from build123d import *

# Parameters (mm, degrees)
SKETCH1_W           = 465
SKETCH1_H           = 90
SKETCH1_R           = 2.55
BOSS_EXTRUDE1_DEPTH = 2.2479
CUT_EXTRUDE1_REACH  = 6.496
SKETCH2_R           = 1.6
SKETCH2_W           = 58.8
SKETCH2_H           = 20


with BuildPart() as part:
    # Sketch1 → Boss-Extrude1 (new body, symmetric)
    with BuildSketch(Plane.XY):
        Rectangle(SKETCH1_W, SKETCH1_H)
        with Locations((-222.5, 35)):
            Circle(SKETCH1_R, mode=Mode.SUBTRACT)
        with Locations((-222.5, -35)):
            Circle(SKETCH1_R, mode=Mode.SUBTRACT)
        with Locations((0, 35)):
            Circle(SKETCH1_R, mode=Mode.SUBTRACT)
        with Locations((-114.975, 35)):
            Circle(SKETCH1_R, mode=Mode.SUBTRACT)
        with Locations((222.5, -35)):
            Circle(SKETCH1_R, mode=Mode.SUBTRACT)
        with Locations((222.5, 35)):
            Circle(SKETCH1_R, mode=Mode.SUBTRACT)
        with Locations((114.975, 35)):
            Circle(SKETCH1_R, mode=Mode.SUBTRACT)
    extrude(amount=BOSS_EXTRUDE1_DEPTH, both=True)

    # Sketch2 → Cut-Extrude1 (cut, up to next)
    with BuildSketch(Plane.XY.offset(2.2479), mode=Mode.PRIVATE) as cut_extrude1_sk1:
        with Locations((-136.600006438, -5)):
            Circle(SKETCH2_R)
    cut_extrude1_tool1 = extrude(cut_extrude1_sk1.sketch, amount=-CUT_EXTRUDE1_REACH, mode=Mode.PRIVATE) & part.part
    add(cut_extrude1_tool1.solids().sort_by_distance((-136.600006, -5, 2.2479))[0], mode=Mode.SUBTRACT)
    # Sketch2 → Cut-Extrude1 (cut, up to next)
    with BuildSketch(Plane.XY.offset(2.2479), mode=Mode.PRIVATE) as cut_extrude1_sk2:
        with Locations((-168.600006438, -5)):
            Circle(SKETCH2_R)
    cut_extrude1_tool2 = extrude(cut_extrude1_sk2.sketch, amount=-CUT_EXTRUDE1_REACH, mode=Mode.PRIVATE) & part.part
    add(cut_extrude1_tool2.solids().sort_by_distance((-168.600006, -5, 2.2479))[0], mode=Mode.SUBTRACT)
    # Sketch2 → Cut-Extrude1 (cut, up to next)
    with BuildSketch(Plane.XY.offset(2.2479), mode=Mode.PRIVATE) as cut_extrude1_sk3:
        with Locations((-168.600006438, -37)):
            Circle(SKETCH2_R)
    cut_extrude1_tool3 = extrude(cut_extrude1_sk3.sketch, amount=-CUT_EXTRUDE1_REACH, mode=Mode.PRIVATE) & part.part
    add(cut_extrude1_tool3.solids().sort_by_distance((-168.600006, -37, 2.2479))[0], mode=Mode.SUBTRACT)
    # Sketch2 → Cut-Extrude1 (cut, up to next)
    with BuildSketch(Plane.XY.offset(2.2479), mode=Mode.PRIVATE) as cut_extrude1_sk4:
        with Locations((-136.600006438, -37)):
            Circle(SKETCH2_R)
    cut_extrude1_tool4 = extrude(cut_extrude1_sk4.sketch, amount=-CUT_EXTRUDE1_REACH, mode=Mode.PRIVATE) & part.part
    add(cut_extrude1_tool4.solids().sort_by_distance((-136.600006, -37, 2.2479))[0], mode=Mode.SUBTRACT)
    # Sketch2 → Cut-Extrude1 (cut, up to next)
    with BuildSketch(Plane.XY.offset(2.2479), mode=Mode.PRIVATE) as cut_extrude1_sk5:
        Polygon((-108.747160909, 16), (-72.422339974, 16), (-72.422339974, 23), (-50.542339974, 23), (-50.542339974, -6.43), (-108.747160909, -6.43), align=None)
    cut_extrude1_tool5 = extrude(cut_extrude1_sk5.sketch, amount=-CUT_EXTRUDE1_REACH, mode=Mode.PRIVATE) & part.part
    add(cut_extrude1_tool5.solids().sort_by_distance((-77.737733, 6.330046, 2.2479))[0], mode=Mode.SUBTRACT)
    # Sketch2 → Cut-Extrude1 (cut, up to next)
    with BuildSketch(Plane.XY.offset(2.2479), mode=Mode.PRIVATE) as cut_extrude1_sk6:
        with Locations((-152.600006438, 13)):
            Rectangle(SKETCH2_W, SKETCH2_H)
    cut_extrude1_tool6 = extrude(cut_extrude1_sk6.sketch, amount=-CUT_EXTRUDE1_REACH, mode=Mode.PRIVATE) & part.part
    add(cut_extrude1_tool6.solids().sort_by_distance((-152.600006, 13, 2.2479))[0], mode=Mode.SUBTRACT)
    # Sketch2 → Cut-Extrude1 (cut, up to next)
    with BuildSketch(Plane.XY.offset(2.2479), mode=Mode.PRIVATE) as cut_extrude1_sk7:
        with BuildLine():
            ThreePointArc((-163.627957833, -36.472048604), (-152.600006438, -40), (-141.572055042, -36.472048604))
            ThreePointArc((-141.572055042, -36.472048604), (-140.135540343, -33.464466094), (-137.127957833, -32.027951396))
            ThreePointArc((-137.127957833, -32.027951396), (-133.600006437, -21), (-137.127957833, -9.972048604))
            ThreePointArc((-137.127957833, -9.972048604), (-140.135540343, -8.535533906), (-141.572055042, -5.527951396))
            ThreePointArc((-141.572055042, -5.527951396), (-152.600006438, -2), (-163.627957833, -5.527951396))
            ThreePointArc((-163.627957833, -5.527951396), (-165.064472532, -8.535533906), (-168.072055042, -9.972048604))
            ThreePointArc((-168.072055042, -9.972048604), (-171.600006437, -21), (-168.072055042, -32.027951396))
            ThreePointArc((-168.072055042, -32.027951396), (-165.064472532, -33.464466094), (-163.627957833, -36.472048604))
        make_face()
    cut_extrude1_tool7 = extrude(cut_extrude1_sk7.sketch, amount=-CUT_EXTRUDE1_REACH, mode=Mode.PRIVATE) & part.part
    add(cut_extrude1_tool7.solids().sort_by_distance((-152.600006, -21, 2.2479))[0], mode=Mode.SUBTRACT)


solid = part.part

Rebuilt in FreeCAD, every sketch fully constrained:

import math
import FreeCAD as App
import Part
import Sketcher

V = App.Vector
Q = App.Units.Quantity

doc = App.newDocument("Part")
params = doc.addObject("Spreadsheet::Sheet", "Params")
for row, (alias, value) in enumerate([
    ("sketch1_diameter", "5.1 mm"),
    ("sketch1_width", "465 mm"),
    ("sketch1_height", "90 mm"),
    ("pad1_length", "4.4958 mm"),
    ("sketch2_diameter", "3.2 mm"),
    ("sketch3_diameter", "3.2 mm"),
    ("sketch4_diameter", "3.2 mm"),
    ("sketch5_diameter", "3.2 mm"),
    ("sketch6_height", "7 mm"),
    ("sketch6_width", "21.88 mm"),
    ("sketch6_height2", "22.43 mm"),
    ("sketch7_height", "20 mm"),
    ("sketch7_width", "58.8 mm"),
    ("sketch8_radius", "19 mm"),
    ("sketch8_radius2", "5 mm"),
], start=1):
    params.set(f"A{row}", alias)
    params.set(f"B{row}", "=" + value)
    params.setAlias(f"B{row}", alias)

body = doc.addObject("PartDesign::Body", "Body")

sketch1 = doc.addObject("Sketcher::SketchObject", "Sketch")
body.addObject(sketch1)
sketch1.AttachmentSupport = (doc.XY_Plane, [""])
sketch1.MapMode = "FlatFace"
sketch1.addGeometry(Part.LineSegment(V(-232.5, 45, 0), V(-232.5, -45, 0)), False)
sketch1.addGeometry(Part.LineSegment(V(-232.5, -45, 0), V(232.5, -45, 0)), False)
sketch1.addGeometry(Part.LineSegment(V(232.5, -45, 0), V(232.5, 45, 0)), False)
sketch1.addGeometry(Part.LineSegment(V(232.5, 45, 0), V(-232.5, 45, 0)), False)
sketch1.addGeometry(Part.Circle(V(-222.5, -35, 0), V(0, 0, 1), 2.5), False)
sketch1.addGeometry(Part.Circle(V(222.5, -35, 0), V(0, 0, 1), 2.5), False)
sketch1.addGeometry(Part.Circle(V(-222.5, 35, 0), V(0, 0, 1), 2.5), False)
sketch1.addGeometry(Part.Circle(V(-115, 35, 0), V(0, 0, 1), 2.5), False)
sketch1.addGeometry(Part.Circle(V(0, 35, 0), V(0, 0, 1), 2.5), False)
sketch1.addGeometry(Part.Circle(V(115, 35, 0), V(0, 0, 1), 2.5), False)
sketch1.addGeometry(Part.Circle(V(222.5, 35, 0), V(0, 0, 1), 2.5), False)
sketch1.addConstraint(Sketcher.Constraint("Coincident", 0, 2, 1, 1))
sketch1.addConstraint(Sketcher.Constraint("Coincident", 1, 2, 2, 1))
sketch1.addConstraint(Sketcher.Constraint("Coincident", 2, 2, 3, 1))
sketch1.addConstraint(Sketcher.Constraint("Coincident", 3, 2, 0, 1))
sketch1.addConstraint(Sketcher.Constraint("Vertical", 0))
sketch1.addConstraint(Sketcher.Constraint("Horizontal", 1))
sketch1.addConstraint(Sketcher.Constraint("Vertical", 2))
sketch1.addConstraint(Sketcher.Constraint("Horizontal", 3))
sketch1.addConstraint(Sketcher.Constraint("Equal", 4, 5))
sketch1.addConstraint(Sketcher.Constraint("Equal", 5, 6))
sketch1.addConstraint(Sketcher.Constraint("Equal", 6, 7))
sketch1.addConstraint(Sketcher.Constraint("Equal", 7, 8))
sketch1.addConstraint(Sketcher.Constraint("Equal", 8, 9))
sketch1.addConstraint(Sketcher.Constraint("Equal", 9, 10))
sketch1.addConstraint(Sketcher.Constraint("Symmetric", 5, 3, 6, 3, -1, 1))
sketch1.addConstraint(Sketcher.Constraint("Symmetric", 4, 3, 10, 3, -1, 1))
sketch1.addConstraint(Sketcher.Constraint("Symmetric", 0, 2, 2, 2, -1, 1))
sketch1.addConstraint(Sketcher.Constraint("Symmetric", 4, 3, 5, 3, -2))
sketch1.addConstraint(Sketcher.Constraint("Symmetric", 7, 3, 9, 3, -2))
sketch1.addConstraint(Sketcher.Constraint("PointOnObject", 8, 3, -2))
sketch1.addConstraint(Sketcher.Constraint("Horizontal", 6, 3, 7, 3))
sketch1.addConstraint(Sketcher.Constraint("Horizontal", 7, 3, 8, 3))
sketch1.addConstraint(Sketcher.Constraint("Diameter", 4, Q("5.1 mm")))
sketch1.addConstraint(Sketcher.Constraint("DistanceX", 1, 1, 1, 2, Q("465 mm")))
sketch1.addConstraint(Sketcher.Constraint("DistanceY", 0, 2, 0, 1, Q("90 mm")))
sketch1.addConstraint(Sketcher.Constraint("DistanceY", 4, 3, -1, 1, Q("35 mm")))
sketch1.addConstraint(Sketcher.Constraint("DistanceX", 4, 3, 5, 3, Q("445 mm")))
sketch1.addConstraint(Sketcher.Constraint("DistanceX", 7, 3, 9, 3, Q("229.95 mm")))
sketch1.setExpression("Constraints[22]", "Params.sketch1_diameter")
sketch1.setExpression("Constraints[23]", "Params.sketch1_width")
sketch1.setExpression("Constraints[24]", "Params.sketch1_height")
pad1 = doc.addObject("PartDesign::Pad", "Pad")
body.addObject(pad1)
pad1.Profile = sketch1
pad1.setExpression("Length", "Params.pad1_length")
pad1.Midplane = True

sketch2 = doc.addObject("Sketcher::SketchObject", "Sketch001")
body.addObject(sketch2)
sketch2.AttachmentSupport = (doc.XY_Plane, [""])
sketch2.MapMode = "FlatFace"
sketch2.AttachmentOffset = App.Placement(V(0, 0, 2.2479), App.Rotation())
sketch2.addGeometry(Part.Circle(V(-136.6, -5, 0), V(0, 0, 1), 1.6), False)
sketch2.addConstraint(Sketcher.Constraint("Diameter", 0, Q("3.2 mm")))
sketch2.addConstraint(Sketcher.Constraint("DistanceY", 0, 3, -1, 1, Q("5 mm")))
sketch2.addConstraint(Sketcher.Constraint("DistanceX", 0, 3, -1, 1, Q("136.600006 mm")))
sketch2.setExpression("Constraints[0]", "Params.sketch2_diameter")
pocket1 = doc.addObject("PartDesign::Pocket", "Pocket")
body.addObject(pocket1)
pocket1.Profile = sketch2
pocket1.Type = "UpToFirst"

sketch3 = doc.addObject("Sketcher::SketchObject", "Sketch002")
body.addObject(sketch3)
sketch3.AttachmentSupport = (doc.XY_Plane, [""])
sketch3.MapMode = "FlatFace"
sketch3.AttachmentOffset = App.Placement(V(0, 0, 2.2479), App.Rotation())
sketch3.addGeometry(Part.Circle(V(-168.6, -5, 0), V(0, 0, 1), 1.6), False)
sketch3.addConstraint(Sketcher.Constraint("Diameter", 0, Q("3.2 mm")))
sketch3.addConstraint(Sketcher.Constraint("DistanceY", 0, 3, -1, 1, Q("5 mm")))
sketch3.addConstraint(Sketcher.Constraint("DistanceX", 0, 3, -1, 1, Q("168.600006 mm")))
sketch3.setExpression("Constraints[0]", "Params.sketch3_diameter")
pocket2 = doc.addObject("PartDesign::Pocket", "Pocket001")
body.addObject(pocket2)
pocket2.Profile = sketch3
pocket2.Type = "UpToFirst"

sketch4 = doc.addObject("Sketcher::SketchObject", "Sketch003")
body.addObject(sketch4)
sketch4.AttachmentSupport = (doc.XY_Plane, [""])
sketch4.MapMode = "FlatFace"
sketch4.AttachmentOffset = App.Placement(V(0, 0, 2.2479), App.Rotation())
sketch4.addGeometry(Part.Circle(V(-168.6, -37, 0), V(0, 0, 1), 1.6), False)
sketch4.addConstraint(Sketcher.Constraint("Diameter", 0, Q("3.2 mm")))
sketch4.addConstraint(Sketcher.Constraint("DistanceY", 0, 3, -1, 1, Q("37 mm")))
sketch4.addConstraint(Sketcher.Constraint("DistanceX", 0, 3, -1, 1, Q("168.600006 mm")))
sketch4.setExpression("Constraints[0]", "Params.sketch4_diameter")
pocket3 = doc.addObject("PartDesign::Pocket", "Pocket002")
body.addObject(pocket3)
pocket3.Profile = sketch4
pocket3.Type = "UpToFirst"

sketch5 = doc.addObject("Sketcher::SketchObject", "Sketch004")
body.addObject(sketch5)
sketch5.AttachmentSupport = (doc.XY_Plane, [""])
sketch5.MapMode = "FlatFace"
sketch5.AttachmentOffset = App.Placement(V(0, 0, 2.2479), App.Rotation())
sketch5.addGeometry(Part.Circle(V(-136.6, -37, 0), V(0, 0, 1), 1.6), False)
sketch5.addConstraint(Sketcher.Constraint("Diameter", 0, Q("3.2 mm")))
sketch5.addConstraint(Sketcher.Constraint("DistanceY", 0, 3, -1, 1, Q("37 mm")))
sketch5.addConstraint(Sketcher.Constraint("DistanceX", 0, 3, -1, 1, Q("136.600006 mm")))
sketch5.setExpression("Constraints[0]", "Params.sketch5_diameter")
pocket4 = doc.addObject("PartDesign::Pocket", "Pocket003")
body.addObject(pocket4)
pocket4.Profile = sketch5
pocket4.Type = "UpToFirst"

sketch6 = doc.addObject("Sketcher::SketchObject", "Sketch005")
body.addObject(sketch6)
sketch6.AttachmentSupport = (doc.XY_Plane, [""])
sketch6.MapMode = "FlatFace"
sketch6.AttachmentOffset = App.Placement(V(0, 0, 2.2479), App.Rotation())
sketch6.addGeometry(Part.LineSegment(V(-72, 16, 0), V(-109, 16, 0)), False)
sketch6.addGeometry(Part.LineSegment(V(-109, 16, 0), V(-109, -6, 0)), False)
sketch6.addGeometry(Part.LineSegment(V(-109, -6, 0), V(-51, -6, 0)), False)
sketch6.addGeometry(Part.LineSegment(V(-51, -6, 0), V(-51, 23, 0)), False)
sketch6.addGeometry(Part.LineSegment(V(-51, 23, 0), V(-72, 23, 0)), False)
sketch6.addGeometry(Part.LineSegment(V(-72, 23, 0), V(-72, 16, 0)), False)
sketch6.addConstraint(Sketcher.Constraint("Coincident", 0, 2, 1, 1))
sketch6.addConstraint(Sketcher.Constraint("Coincident", 1, 2, 2, 1))
sketch6.addConstraint(Sketcher.Constraint("Coincident", 2, 2, 3, 1))
sketch6.addConstraint(Sketcher.Constraint("Coincident", 3, 2, 4, 1))
sketch6.addConstraint(Sketcher.Constraint("Coincident", 4, 2, 5, 1))
sketch6.addConstraint(Sketcher.Constraint("Coincident", 5, 2, 0, 1))
sketch6.addConstraint(Sketcher.Constraint("Horizontal", 0))
sketch6.addConstraint(Sketcher.Constraint("Vertical", 1))
sketch6.addConstraint(Sketcher.Constraint("Horizontal", 2))
sketch6.addConstraint(Sketcher.Constraint("Vertical", 3))
sketch6.addConstraint(Sketcher.Constraint("Horizontal", 4))
sketch6.addConstraint(Sketcher.Constraint("Vertical", 5))
sketch6.addConstraint(Sketcher.Constraint("DistanceY", 5, 2, 5, 1, Q("7 mm")))
sketch6.addConstraint(Sketcher.Constraint("DistanceY", -1, 1, 0, 2, Q("16 mm")))
sketch6.addConstraint(Sketcher.Constraint("DistanceX", 4, 2, 4, 1, Q("21.88 mm")))
sketch6.addConstraint(Sketcher.Constraint("DistanceY", 1, 2, 1, 1, Q("22.43 mm")))
sketch6.addConstraint(Sketcher.Constraint("DistanceX", 0, 2, 0, 1, Q("36.324821 mm")))
sketch6.addConstraint(Sketcher.Constraint("DistanceX", 0, 2, -1, 1, Q("108.747161 mm")))
sketch6.setExpression("Constraints[12]", "Params.sketch6_height")
sketch6.setExpression("Constraints[14]", "Params.sketch6_width")
sketch6.setExpression("Constraints[15]", "Params.sketch6_height2")
pocket5 = doc.addObject("PartDesign::Pocket", "Pocket004")
body.addObject(pocket5)
pocket5.Profile = sketch6
pocket5.Type = "UpToFirst"

sketch7 = doc.addObject("Sketcher::SketchObject", "Sketch006")
body.addObject(sketch7)
sketch7.AttachmentSupport = (doc.XY_Plane, [""])
sketch7.MapMode = "FlatFace"
sketch7.AttachmentOffset = App.Placement(V(0, 0, 2.2479), App.Rotation())
sketch7.addGeometry(Part.LineSegment(V(-182, 23, 0), V(-182, 3, 0)), False)
sketch7.addGeometry(Part.LineSegment(V(-182, 3, 0), V(-123, 3, 0)), False)
sketch7.addGeometry(Part.LineSegment(V(-123, 3, 0), V(-123, 23, 0)), False)
sketch7.addGeometry(Part.LineSegment(V(-123, 23, 0), V(-182, 23, 0)), False)
sketch7.addConstraint(Sketcher.Constraint("Coincident", 0, 2, 1, 1))
sketch7.addConstraint(Sketcher.Constraint("Coincident", 1, 2, 2, 1))
sketch7.addConstraint(Sketcher.Constraint("Coincident", 2, 2, 3, 1))
sketch7.addConstraint(Sketcher.Constraint("Coincident", 3, 2, 0, 1))
sketch7.addConstraint(Sketcher.Constraint("Vertical", 0))
sketch7.addConstraint(Sketcher.Constraint("Horizontal", 1))
sketch7.addConstraint(Sketcher.Constraint("Vertical", 2))
sketch7.addConstraint(Sketcher.Constraint("Horizontal", 3))
sketch7.addConstraint(Sketcher.Constraint("DistanceY", 0, 2, 0, 1, Q("20 mm")))
sketch7.addConstraint(Sketcher.Constraint("DistanceX", 1, 1, 1, 2, Q("58.8 mm")))
sketch7.addConstraint(Sketcher.Constraint("DistanceY", -1, 1, 0, 2, Q("3 mm")))
sketch7.addConstraint(Sketcher.Constraint("DistanceX", 0, 2, -1, 1, Q("182.000006 mm")))
sketch7.setExpression("Constraints[8]", "Params.sketch7_height")
sketch7.setExpression("Constraints[9]", "Params.sketch7_width")
pocket6 = doc.addObject("PartDesign::Pocket", "Pocket005")
body.addObject(pocket6)
pocket6.Profile = sketch7
pocket6.Type = "UpToFirst"

sketch8 = doc.addObject("Sketcher::SketchObject", "Sketch007")
body.addObject(sketch8)
sketch8.AttachmentSupport = (doc.XY_Plane, [""])
sketch8.MapMode = "FlatFace"
sketch8.AttachmentOffset = App.Placement(V(0, 0, 2.2479), App.Rotation())
sketch8.addGeometry(Part.ArcOfCircle(Part.Circle(V(-153, -21, 0), V(0, 0, 1), 19), math.radians(-125), math.radians(-55)), False)
sketch8.addGeometry(Part.ArcOfCircle(Part.Circle(V(-137, -37, 0), V(0, 0, 1), 5), math.radians(96), math.radians(174)), False)
sketch8.addGeometry(Part.ArcOfCircle(Part.Circle(V(-153, -21, 0), V(0, 0, 1), 19), math.radians(-35), math.radians(35)), False)
sketch8.addGeometry(Part.ArcOfCircle(Part.Circle(V(-137, -5, 0), V(0, 0, 1), 5), math.radians(-174), math.radians(-96)), False)
sketch8.addGeometry(Part.ArcOfCircle(Part.Circle(V(-153, -21, 0), V(0, 0, 1), 19), math.radians(55), math.radians(125)), False)
sketch8.addGeometry(Part.ArcOfCircle(Part.Circle(V(-169, -5, 0), V(0, 0, 1), 5), math.radians(-84), math.radians(-6)), False)
sketch8.addGeometry(Part.ArcOfCircle(Part.Circle(V(-153, -21, 0), V(0, 0, 1), 19), math.radians(145), math.radians(215)), False)
sketch8.addGeometry(Part.ArcOfCircle(Part.Circle(V(-169, -37, 0), V(0, 0, 1), 5), math.radians(6), math.radians(84)), False)
sketch8.addConstraint(Sketcher.Constraint("Coincident", 0, 2, 1, 2))
sketch8.addConstraint(Sketcher.Constraint("Coincident", 1, 1, 2, 1))
sketch8.addConstraint(Sketcher.Constraint("Coincident", 2, 2, 3, 2))
sketch8.addConstraint(Sketcher.Constraint("Coincident", 3, 1, 4, 1))
sketch8.addConstraint(Sketcher.Constraint("Coincident", 4, 2, 5, 2))
sketch8.addConstraint(Sketcher.Constraint("Coincident", 5, 1, 6, 1))
sketch8.addConstraint(Sketcher.Constraint("Coincident", 6, 2, 7, 2))
sketch8.addConstraint(Sketcher.Constraint("Coincident", 7, 1, 0, 1))
sketch8.addConstraint(Sketcher.Constraint("Coincident", 2, 3, 0, 3))
sketch8.addConstraint(Sketcher.Constraint("Coincident", 4, 3, 0, 3))
sketch8.addConstraint(Sketcher.Constraint("Coincident", 6, 3, 0, 3))
sketch8.addConstraint(Sketcher.Constraint("Equal", 0, 2))
sketch8.addConstraint(Sketcher.Constraint("Equal", 1, 3))
sketch8.addConstraint(Sketcher.Constraint("Equal", 2, 4))
sketch8.addConstraint(Sketcher.Constraint("Equal", 3, 5))
sketch8.addConstraint(Sketcher.Constraint("Equal", 4, 6))
sketch8.addConstraint(Sketcher.Constraint("Equal", 5, 7))
sketch8.addConstraint(Sketcher.Constraint("Horizontal", 3, 3, 5, 3))
sketch8.addConstraint(Sketcher.Constraint("Horizontal", 1, 3, 7, 3))
sketch8.addConstraint(Sketcher.Constraint("Horizontal", 3, 1, 4, 2))
sketch8.addConstraint(Sketcher.Constraint("Horizontal", 1, 1, 6, 2))
sketch8.addConstraint(Sketcher.Constraint("Vertical", 1, 3, 3, 3))
sketch8.addConstraint(Sketcher.Constraint("Vertical", 1, 1, 2, 2))
sketch8.addConstraint(Sketcher.Constraint("Radius", 0, Q("19 mm")))
sketch8.addConstraint(Sketcher.Constraint("Radius", 1, Q("5 mm")))
sketch8.addConstraint(Sketcher.Constraint("DistanceY", 0, 3, -1, 1, Q("21 mm")))
sketch8.addConstraint(Sketcher.Constraint("DistanceY", 1, 3, -1, 1, Q("37 mm")))
sketch8.addConstraint(Sketcher.Constraint("DistanceX", 0, 3, 1, 3, Q("16 mm")))
sketch8.addConstraint(Sketcher.Constraint("DistanceX", 0, 3, -1, 1, Q("152.600006 mm")))
sketch8.setExpression("Constraints[23]", "Params.sketch8_radius")
sketch8.setExpression("Constraints[24]", "Params.sketch8_radius2")
pocket7 = doc.addObject("PartDesign::Pocket", "Pocket006")
body.addObject(pocket7)
pocket7.Profile = sketch8
pocket7.Type = "UpToFirst"

doc.recompute()
